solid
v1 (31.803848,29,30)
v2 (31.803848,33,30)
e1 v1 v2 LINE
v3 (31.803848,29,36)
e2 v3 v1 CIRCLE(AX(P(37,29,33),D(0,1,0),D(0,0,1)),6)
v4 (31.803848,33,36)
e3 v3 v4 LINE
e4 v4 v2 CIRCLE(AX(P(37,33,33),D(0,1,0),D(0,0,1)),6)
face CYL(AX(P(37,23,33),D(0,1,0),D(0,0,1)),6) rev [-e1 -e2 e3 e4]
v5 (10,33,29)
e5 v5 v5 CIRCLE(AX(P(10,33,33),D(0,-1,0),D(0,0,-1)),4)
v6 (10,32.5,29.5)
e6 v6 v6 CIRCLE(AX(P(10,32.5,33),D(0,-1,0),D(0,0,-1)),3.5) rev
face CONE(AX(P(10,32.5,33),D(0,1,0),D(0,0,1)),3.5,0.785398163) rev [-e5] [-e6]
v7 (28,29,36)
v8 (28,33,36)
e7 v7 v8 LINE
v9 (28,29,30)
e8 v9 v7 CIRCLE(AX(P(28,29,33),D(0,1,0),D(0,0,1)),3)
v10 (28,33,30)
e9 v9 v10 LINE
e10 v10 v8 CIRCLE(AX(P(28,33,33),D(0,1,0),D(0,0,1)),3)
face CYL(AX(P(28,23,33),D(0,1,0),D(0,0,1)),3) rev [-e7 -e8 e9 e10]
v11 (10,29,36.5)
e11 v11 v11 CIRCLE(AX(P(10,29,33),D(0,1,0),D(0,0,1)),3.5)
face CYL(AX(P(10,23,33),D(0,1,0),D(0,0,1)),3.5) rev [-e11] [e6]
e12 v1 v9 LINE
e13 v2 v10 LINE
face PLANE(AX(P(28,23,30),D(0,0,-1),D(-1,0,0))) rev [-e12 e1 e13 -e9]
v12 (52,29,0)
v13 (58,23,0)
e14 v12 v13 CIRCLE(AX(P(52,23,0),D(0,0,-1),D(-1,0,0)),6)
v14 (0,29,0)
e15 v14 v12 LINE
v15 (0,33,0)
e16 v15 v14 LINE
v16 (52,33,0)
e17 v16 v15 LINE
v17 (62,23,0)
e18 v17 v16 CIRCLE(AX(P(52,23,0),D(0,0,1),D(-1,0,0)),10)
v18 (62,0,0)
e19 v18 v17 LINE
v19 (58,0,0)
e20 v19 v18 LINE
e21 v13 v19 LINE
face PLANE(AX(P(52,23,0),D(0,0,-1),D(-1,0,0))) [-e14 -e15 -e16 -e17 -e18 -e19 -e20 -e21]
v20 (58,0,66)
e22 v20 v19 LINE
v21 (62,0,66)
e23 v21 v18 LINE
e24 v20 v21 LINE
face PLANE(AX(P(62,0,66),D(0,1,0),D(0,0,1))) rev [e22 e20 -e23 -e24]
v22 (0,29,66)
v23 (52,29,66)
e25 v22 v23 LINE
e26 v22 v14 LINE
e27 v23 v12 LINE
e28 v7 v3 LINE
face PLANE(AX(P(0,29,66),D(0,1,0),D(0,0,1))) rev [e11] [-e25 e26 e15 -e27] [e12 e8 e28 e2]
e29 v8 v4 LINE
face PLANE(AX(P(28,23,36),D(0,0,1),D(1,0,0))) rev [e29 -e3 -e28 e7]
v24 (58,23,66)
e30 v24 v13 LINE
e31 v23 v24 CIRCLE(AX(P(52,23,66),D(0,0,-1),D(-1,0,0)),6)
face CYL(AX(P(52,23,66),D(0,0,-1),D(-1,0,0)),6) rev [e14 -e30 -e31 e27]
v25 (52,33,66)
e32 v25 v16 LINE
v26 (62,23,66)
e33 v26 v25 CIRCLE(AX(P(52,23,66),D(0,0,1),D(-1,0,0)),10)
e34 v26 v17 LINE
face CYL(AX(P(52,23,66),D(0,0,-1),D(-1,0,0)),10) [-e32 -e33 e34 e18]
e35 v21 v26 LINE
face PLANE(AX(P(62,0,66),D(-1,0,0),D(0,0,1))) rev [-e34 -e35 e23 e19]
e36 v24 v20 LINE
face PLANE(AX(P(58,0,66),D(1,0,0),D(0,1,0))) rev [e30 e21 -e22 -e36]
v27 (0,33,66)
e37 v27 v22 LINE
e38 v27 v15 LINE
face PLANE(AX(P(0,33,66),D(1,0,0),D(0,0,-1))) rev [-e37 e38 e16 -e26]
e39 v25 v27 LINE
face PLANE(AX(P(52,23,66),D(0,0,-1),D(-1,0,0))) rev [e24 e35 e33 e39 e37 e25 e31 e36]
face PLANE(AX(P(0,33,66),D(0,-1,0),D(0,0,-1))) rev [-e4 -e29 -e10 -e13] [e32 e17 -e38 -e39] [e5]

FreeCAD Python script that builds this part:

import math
import FreeCAD as App
import Part
import Sketcher


def edges_at(feature, points):
    """Names of the edges that pass closest to the given points."""
    edges = feature.Shape.Edges
    near = lambda p: min(range(len(edges)), key=lambda i: edges[i].distToShape(Part.Vertex(*p))[0])
    return sorted({f"Edge{near(p) + 1}" for p in points})

doc = App.newDocument("Part")
params = doc.addObject("Spreadsheet::Sheet", "Params")
for row, (alias, value) in enumerate([
    ("sketch1_radius", "6 mm"),
    ("sketch1_radius2", "10 mm"),
    ("sketch1_width", "52 mm"),
    ("sketch1_height", "23 mm"),
    ("pad1_length", "66 mm"),
    ("sketch2_radius", "3 mm"),
    ("sketch2_radius2", "6 mm"),
    ("pocket1_length", "10 mm"),
    ("sketch3_diameter", "7 mm"),
    ("pocket2_length", "10 mm"),
    ("chamfer_size", "0.5 mm"),
], start=1):
    params.set(f"A{row}", alias)
    params.set(f"B{row}", "=" + value)
    params.setAlias(f"B{row}", alias)

body = doc.addObject("PartDesign::Body", "Body")

# Sketch on XY plane
sketch1 = body.newObject("Sketcher::SketchObject", "Sketch")
sketch1.AttachmentSupport = (doc.getObject("XY_Plane"), [""])
sketch1.MapMode = "FlatFace"
sketch1.addGeometry(Part.LineSegment(App.Vector(0, 29, 0), App.Vector(52, 29, 0)), False)
sketch1.addGeometry(Part.ArcOfCircle(Part.Circle(App.Vector(52, 23, 0), App.Vector(0, 0, 1), 6), math.radians(0), math.radians(90)), False)
sketch1.addGeometry(Part.LineSegment(App.Vector(58, 23, 0), App.Vector(58, 0, 0)), False)
sketch1.addGeometry(Part.LineSegment(App.Vector(58, 0, 0), App.Vector(62, 0, 0)), False)
sketch1.addGeometry(Part.LineSegment(App.Vector(62, 0, 0), App.Vector(62, 23, 0)), False)
sketch1.addGeometry(Part.ArcOfCircle(Part.Circle(App.Vector(52, 23, 0), App.Vector(0, 0, 1), 10), math.radians(0), math.radians(90)), False)
sketch1.addGeometry(Part.LineSegment(App.Vector(52, 33, 0), App.Vector(0, 33, 0)), False)
sketch1.addGeometry(Part.LineSegment(App.Vector(0, 33, 0), App.Vector(0, 29, 0)), False)
sketch1.addConstraint(Sketcher.Constraint("Tangent", 0, 2, 1, 2))
sketch1.addConstraint(Sketcher.Constraint("Tangent", 1, 1, 2, 1))
sketch1.addConstraint(Sketcher.Constraint("Coincident", 2, 2, 3, 1))
sketch1.addConstraint(Sketcher.Constraint("Coincident", 3, 2, 4, 1))
sketch1.addConstraint(Sketcher.Constraint("Tangent", 4, 2, 5, 1))
sketch1.addConstraint(Sketcher.Constraint("Tangent", 5, 2, 6, 1))
sketch1.addConstraint(Sketcher.Constraint("Coincident", 6, 2, 7, 1))
sketch1.addConstraint(Sketcher.Constraint("Coincident", 7, 2, 0, 1))
sketch1.addConstraint(Sketcher.Constraint("Horizontal", 0))
sketch1.addConstraint(Sketcher.Constraint("Vertical", 2))
sketch1.addConstraint(Sketcher.Constraint("Horizontal", 3))
sketch1.addConstraint(Sketcher.Constraint("Vertical", 4))
sketch1.addConstraint(Sketcher.Constraint("Horizontal", 6))
sketch1.addConstraint(Sketcher.Constraint("Vertical", 7))
sketch1.addConstraint(Sketcher.Constraint("Coincident", 5, 3, 1, 3))
sketch1.addConstraint(Sketcher.Constraint("PointOnObject", 2, 2, -1))
sketch1.addConstraint(Sketcher.Constraint("PointOnObject", 6, 2, -2))
sketch1.addConstraint(Sketcher.Constraint("Radius", 1, 6.0))
sketch1.addConstraint(Sketcher.Constraint("Radius", 5, 10.0))
sketch1.addConstraint(Sketcher.Constraint("DistanceX", 0, 1, 0, 2, 52.0))
sketch1.addConstraint(Sketcher.Constraint("DistanceY", 2, 2, 2, 1, 23.0))
sketch1.setExpression("Constraints[17]", "Params.sketch1_radius")
sketch1.setExpression("Constraints[18]", "Params.sketch1_radius2")
sketch1.setExpression("Constraints[19]", "Params.sketch1_width")
sketch1.setExpression("Constraints[20]", "Params.sketch1_height")
pad1 = body.newObject("PartDesign::Pad", "Pad")
pad1.Profile = sketch1
pad1.setExpression("Length", "Params.pad1_length")

# Sketch on XZ plane
sketch2 = body.newObject("Sketcher::SketchObject", "Sketch001")
sketch2.AttachmentSupport = (doc.getObject("XZ_Plane"), [""])
sketch2.MapMode = "FlatFace"
sketch2.AttachmentOffset = App.Placement(App.Vector(0, 0, -33), App.Rotation())
sketch2.addGeometry(Part.LineSegment(App.Vector(31.8, 30, 0), App.Vector(28, 30, 0)), False)
sketch2.addGeometry(Part.ArcOfCircle(Part.Circle(App.Vector(28, 33, 0), App.Vector(0, 0, 1), 3), math.radians(90), math.radians(270)), False)
sketch2.addGeometry(Part.LineSegment(App.Vector(28, 36, 0), App.Vector(31.8, 36, 0)), False)
sketch2.addGeometry(Part.ArcOfCircle(Part.Circle(App.Vector(37, 33, 0), App.Vector(0, 0, 1), 6), math.radians(-150), math.radians(150)), False)
sketch2.addConstraint(Sketcher.Constraint("Tangent", 0, 2, 1, 2))
sketch2.addConstraint(Sketcher.Constraint("Tangent", 1, 1, 2, 1))
sketch2.addConstraint(Sketcher.Constraint("Coincident", 2, 2, 3, 2))
sketch2.addConstraint(Sketcher.Constraint("Coincident", 3, 1, 0, 1))
sketch2.addConstraint(Sketcher.Constraint("Horizontal", 0))
sketch2.addConstraint(Sketcher.Constraint("Horizontal", 2))
sketch2.addConstraint(Sketcher.Constraint("Horizontal", 1, 3, 3, 3))
sketch2.addConstraint(Sketcher.Constraint("Radius", 1, 3.0))
sketch2.addConstraint(Sketcher.Constraint("Radius", 3, 6.0))
sketch2.addConstraint(Sketcher.Constraint("DistanceX", -1, 1, 1, 3, 28.0))
sketch2.addConstraint(Sketcher.Constraint("DistanceY", -1, 1, 1, 3, 33.0))
sketch2.addConstraint(Sketcher.Constraint("DistanceX", -1, 1, 3, 3, 37.0))
sketch2.setExpression("Constraints[7]", "Params.sketch2_radius")
sketch2.setExpression("Constraints[8]", "Params.sketch2_radius2")
pocket1 = body.newObject("PartDesign::Pocket", "Pocket")
pocket1.Profile = sketch2
pocket1.setExpression("Length", "Params.pocket1_length")
pocket1.Reversed = True

# Sketch on XZ plane
sketch3 = body.newObject("Sketcher::SketchObject", "Sketch002")
sketch3.AttachmentSupport = (doc.getObject("XZ_Plane"), [""])
sketch3.MapMode = "FlatFace"
sketch3.AttachmentOffset = App.Placement(App.Vector(0, 0, -33), App.Rotation())
sketch3.addGeometry(Part.Circle(App.Vector(10, 33, 0), App.Vector(0, 0, 1), 3.5), False)
sketch3.addConstraint(Sketcher.Constraint("Diameter", 0, 7.0))
sketch3.addConstraint(Sketcher.Constraint("DistanceX", -1, 1, 0, 3, 10.0))
sketch3.addConstraint(Sketcher.Constraint("DistanceY", -1, 1, 0, 3, 33.0))
sketch3.setExpression("Constraints[0]", "Params.sketch3_diameter")
pocket2 = body.newObject("PartDesign::Pocket", "Pocket001")
pocket2.Profile = sketch3
pocket2.setExpression("Length", "Params.pocket2_length")
pocket2.Reversed = True
doc.recompute()

chamfer = body.newObject("PartDesign::Chamfer", "Chamfer")
chamfer.Base = (pocket2, edges_at(pocket2, [(10, 33, 29.5)]))
chamfer.setExpression("Size", "Params.chamfer_size")

doc.recompute()
